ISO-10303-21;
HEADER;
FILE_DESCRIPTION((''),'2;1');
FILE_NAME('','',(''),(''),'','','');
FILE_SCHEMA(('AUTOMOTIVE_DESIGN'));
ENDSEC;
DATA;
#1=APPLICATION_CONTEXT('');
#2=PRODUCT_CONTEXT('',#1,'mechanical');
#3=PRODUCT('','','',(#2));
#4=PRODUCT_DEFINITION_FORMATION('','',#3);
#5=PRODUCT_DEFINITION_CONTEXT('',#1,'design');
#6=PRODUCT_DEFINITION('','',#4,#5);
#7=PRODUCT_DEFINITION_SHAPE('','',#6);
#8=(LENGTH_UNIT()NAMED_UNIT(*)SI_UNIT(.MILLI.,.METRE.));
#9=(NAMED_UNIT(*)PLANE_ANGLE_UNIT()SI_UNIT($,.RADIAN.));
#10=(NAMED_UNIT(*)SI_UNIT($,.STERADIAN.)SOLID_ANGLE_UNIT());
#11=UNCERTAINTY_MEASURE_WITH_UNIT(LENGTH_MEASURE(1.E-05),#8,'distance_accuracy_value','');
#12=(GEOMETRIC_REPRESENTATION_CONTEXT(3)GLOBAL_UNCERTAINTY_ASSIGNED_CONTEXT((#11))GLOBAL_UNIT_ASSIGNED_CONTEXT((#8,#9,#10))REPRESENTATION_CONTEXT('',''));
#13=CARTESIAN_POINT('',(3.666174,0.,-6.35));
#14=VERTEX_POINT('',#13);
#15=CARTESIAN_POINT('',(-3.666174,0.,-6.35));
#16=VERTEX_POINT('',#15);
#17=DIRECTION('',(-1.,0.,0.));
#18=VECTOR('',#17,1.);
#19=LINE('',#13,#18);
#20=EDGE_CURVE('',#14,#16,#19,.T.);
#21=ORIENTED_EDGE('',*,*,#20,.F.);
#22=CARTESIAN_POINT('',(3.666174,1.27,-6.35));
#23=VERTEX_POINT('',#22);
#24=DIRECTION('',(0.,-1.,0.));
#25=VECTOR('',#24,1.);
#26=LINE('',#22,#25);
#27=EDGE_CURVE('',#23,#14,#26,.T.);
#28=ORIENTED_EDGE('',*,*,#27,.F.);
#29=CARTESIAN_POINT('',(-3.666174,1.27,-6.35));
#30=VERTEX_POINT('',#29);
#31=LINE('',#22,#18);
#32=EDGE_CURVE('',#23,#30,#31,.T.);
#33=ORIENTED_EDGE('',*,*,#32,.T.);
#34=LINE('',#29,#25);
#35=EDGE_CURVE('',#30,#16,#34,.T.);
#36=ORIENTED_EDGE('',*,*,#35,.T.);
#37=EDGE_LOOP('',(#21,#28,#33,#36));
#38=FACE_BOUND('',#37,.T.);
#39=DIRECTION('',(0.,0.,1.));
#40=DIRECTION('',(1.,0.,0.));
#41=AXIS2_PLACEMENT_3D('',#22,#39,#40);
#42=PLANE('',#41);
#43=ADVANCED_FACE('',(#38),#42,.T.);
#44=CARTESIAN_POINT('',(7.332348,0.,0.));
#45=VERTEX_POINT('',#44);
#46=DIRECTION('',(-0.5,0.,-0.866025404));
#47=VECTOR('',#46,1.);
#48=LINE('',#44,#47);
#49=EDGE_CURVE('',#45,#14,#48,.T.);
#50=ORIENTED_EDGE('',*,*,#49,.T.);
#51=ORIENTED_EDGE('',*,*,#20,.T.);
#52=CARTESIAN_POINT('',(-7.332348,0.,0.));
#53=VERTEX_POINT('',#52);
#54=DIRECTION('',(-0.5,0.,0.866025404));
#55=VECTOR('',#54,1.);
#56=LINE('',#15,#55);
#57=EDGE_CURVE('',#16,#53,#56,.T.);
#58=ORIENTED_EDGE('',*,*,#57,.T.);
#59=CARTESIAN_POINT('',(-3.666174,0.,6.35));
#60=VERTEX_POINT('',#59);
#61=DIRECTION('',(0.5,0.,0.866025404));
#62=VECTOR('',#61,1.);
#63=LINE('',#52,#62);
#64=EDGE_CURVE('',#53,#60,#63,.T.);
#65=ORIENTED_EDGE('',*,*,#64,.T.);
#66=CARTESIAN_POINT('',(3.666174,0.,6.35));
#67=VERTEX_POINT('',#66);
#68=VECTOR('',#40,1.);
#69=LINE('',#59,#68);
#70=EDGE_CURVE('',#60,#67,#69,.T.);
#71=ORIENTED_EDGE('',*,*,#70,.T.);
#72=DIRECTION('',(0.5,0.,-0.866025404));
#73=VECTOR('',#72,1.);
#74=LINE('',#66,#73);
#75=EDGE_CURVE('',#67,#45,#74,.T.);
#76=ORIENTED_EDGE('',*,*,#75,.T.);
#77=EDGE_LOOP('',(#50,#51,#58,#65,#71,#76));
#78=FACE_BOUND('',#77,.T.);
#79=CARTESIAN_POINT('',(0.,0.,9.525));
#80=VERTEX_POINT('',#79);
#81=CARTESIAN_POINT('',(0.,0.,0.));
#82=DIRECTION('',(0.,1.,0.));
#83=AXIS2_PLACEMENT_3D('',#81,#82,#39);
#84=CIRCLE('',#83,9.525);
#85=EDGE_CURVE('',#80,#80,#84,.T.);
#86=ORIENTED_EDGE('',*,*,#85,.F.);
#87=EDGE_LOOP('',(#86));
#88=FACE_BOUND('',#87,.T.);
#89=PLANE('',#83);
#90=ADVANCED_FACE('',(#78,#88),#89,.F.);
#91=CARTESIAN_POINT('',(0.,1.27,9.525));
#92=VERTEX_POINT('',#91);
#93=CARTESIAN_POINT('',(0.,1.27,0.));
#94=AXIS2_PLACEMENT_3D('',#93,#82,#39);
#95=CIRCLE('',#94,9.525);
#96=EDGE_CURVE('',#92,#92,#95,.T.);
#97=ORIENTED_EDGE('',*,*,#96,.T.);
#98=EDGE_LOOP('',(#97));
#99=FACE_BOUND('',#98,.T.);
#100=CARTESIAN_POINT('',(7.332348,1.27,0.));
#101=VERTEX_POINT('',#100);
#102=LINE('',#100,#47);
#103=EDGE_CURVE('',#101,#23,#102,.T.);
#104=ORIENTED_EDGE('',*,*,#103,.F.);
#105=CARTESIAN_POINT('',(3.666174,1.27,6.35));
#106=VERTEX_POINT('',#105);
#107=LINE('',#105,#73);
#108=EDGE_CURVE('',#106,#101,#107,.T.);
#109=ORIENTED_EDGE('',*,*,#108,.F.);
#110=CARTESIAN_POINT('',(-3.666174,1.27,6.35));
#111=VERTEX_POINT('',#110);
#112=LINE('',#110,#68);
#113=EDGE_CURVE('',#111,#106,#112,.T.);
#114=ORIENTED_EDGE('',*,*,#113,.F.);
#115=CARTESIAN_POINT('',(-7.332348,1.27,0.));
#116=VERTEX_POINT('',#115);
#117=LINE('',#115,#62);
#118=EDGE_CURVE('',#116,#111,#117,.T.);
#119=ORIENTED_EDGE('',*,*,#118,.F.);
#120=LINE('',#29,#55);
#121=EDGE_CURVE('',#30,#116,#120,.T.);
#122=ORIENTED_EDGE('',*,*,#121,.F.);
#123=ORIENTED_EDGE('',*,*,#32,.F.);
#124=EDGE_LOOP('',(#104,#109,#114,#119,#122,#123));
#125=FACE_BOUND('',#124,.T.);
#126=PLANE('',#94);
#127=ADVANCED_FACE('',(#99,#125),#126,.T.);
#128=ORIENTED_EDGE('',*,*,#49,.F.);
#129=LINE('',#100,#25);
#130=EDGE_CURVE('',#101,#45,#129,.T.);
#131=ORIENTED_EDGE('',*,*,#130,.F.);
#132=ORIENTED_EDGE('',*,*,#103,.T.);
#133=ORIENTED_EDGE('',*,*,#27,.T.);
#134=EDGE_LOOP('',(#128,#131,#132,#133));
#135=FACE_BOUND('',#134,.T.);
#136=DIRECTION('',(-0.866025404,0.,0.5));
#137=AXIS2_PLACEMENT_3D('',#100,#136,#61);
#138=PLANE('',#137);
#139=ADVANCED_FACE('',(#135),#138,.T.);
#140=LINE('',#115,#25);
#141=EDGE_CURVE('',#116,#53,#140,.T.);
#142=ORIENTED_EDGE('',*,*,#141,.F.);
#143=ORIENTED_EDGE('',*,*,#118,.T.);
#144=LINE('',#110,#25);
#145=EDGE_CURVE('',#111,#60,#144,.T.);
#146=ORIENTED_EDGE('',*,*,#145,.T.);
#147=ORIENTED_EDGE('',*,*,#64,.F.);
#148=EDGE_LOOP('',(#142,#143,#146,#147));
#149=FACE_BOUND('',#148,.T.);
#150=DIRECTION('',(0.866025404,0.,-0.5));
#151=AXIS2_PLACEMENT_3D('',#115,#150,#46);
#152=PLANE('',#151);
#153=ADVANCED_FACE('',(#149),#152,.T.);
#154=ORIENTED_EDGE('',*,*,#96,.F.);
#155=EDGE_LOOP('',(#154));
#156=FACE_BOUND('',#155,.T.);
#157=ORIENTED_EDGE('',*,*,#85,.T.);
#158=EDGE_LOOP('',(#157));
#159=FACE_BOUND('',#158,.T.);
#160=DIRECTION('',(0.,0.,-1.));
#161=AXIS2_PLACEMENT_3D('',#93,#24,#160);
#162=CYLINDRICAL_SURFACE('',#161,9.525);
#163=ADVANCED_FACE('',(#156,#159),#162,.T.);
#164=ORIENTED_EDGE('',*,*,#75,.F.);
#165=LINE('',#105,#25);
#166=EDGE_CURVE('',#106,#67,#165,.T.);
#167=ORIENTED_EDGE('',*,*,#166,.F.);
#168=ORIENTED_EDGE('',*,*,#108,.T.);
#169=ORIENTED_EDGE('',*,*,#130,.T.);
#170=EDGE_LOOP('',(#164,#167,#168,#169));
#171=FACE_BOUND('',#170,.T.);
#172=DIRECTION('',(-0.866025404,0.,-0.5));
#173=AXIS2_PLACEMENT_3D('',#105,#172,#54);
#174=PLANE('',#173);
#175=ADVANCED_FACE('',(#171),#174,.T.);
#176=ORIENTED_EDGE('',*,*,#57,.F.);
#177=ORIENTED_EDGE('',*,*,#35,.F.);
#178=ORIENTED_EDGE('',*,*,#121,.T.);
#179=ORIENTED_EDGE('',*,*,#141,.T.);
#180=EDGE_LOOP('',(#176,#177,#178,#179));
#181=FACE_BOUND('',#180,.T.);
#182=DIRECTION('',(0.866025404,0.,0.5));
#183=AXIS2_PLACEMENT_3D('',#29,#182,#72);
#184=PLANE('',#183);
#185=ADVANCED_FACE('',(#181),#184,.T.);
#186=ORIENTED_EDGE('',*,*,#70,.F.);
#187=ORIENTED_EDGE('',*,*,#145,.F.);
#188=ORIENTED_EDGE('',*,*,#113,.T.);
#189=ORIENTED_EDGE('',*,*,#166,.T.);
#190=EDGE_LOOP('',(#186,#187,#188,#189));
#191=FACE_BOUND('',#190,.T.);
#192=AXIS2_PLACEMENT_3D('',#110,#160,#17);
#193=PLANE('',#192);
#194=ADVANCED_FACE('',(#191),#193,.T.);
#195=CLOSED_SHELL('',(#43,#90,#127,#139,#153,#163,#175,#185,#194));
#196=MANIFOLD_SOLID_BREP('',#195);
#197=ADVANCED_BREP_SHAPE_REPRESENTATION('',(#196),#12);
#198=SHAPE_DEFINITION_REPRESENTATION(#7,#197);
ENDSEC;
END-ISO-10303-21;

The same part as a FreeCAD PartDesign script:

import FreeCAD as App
import Part
import Sketcher
Q = App.Units.Quantity

doc = App.newDocument("Part")
body = doc.addObject("PartDesign::Body", "Body")

# Sketch on XZ plane
sketch1 = body.newObject("Sketcher::SketchObject", "Sketch")
sketch1.AttachmentSupport = (doc.getObject("XZ_Plane"), [""])
sketch1.MapMode = "FlatFace"
sketch1.addGeometry(Part.Circle(App.Vector(0, 0, 0), App.Vector(0, 0, 1), 9.525), False)
sketch1.addGeometry(Part.LineSegment(App.Vector(-3.666174, -6.35, 0), App.Vector(3.666174, -6.35, 0)), False)
sketch1.addGeometry(Part.LineSegment(App.Vector(3.666174, -6.35, 0), App.Vector(7.332348, 0, 0)), False)
sketch1.addGeometry(Part.LineSegment(App.Vector(7.332348, 0, 0), App.Vector(3.666174, 6.35, 0)), False)
sketch1.addGeometry(Part.LineSegment(App.Vector(3.666174, 6.35, 0), App.Vector(-3.666174, 6.35, 0)), False)
sketch1.addGeometry(Part.LineSegment(App.Vector(-3.666174, 6.35, 0), App.Vector(-7.332348, 0, 0)), False)
sketch1.addGeometry(Part.LineSegment(App.Vector(-7.332348, 0, 0), App.Vector(-3.666174, -6.35, 0)), False)
sketch1.addConstraint(Sketcher.Constraint("Coincident", 1, 2, 2, 1))
sketch1.addConstraint(Sketcher.Constraint("Coincident", 2, 2, 3, 1))
sketch1.addConstraint(Sketcher.Constraint("Coincident", 3, 2, 4, 1))
sketch1.addConstraint(Sketcher.Constraint("Coincident", 4, 2, 5, 1))
sketch1.addConstraint(Sketcher.Constraint("Coincident", 5, 2, 6, 1))
sketch1.addConstraint(Sketcher.Constraint("Coincident", 6, 2, 1, 1))
sketch1.addConstraint(Sketcher.Constraint("Horizontal", 1))
sketch1.addConstraint(Sketcher.Constraint("Horizontal", 4))
sketch1.addConstraint(Sketcher.Constraint("Coincident", 0, 3, -1, 1))
sketch1.addConstraint(Sketcher.Constraint("Symmetric", 1, 2, 4, 2, -1, 1))
sketch1.addConstraint(Sketcher.Constraint("Symmetric", 2, 2, 5, 2, -1, 1))
sketch1.addConstraint(Sketcher.Constraint("PointOnObject", 2, 2, -1))
sketch1.addConstraint(Sketcher.Constraint("Parallel", 3, 6))
sketch1.addConstraint(Sketcher.Constraint("Vertical", 1, 2, 3, 2))
sketch1.addConstraint(Sketcher.Constraint("Diameter", 0, Q("0.75 in")))
sketch1.addConstraint(Sketcher.Constraint("Angle", 2, Q("60 deg")))
sketch1.addConstraint(Sketcher.Constraint("DistanceY", 1, 2, 3, 2, Q("0.5 in")))
sketch1.addConstraint(Sketcher.Constraint("DistanceX", 1, 1, 1, 2, 7.332348))
pad1 = body.newObject("PartDesign::Pad", "Pad")
pad1.Profile = sketch1
pad1.Length = Q("0.05 in")
pad1.Reversed = True

doc.recompute()
